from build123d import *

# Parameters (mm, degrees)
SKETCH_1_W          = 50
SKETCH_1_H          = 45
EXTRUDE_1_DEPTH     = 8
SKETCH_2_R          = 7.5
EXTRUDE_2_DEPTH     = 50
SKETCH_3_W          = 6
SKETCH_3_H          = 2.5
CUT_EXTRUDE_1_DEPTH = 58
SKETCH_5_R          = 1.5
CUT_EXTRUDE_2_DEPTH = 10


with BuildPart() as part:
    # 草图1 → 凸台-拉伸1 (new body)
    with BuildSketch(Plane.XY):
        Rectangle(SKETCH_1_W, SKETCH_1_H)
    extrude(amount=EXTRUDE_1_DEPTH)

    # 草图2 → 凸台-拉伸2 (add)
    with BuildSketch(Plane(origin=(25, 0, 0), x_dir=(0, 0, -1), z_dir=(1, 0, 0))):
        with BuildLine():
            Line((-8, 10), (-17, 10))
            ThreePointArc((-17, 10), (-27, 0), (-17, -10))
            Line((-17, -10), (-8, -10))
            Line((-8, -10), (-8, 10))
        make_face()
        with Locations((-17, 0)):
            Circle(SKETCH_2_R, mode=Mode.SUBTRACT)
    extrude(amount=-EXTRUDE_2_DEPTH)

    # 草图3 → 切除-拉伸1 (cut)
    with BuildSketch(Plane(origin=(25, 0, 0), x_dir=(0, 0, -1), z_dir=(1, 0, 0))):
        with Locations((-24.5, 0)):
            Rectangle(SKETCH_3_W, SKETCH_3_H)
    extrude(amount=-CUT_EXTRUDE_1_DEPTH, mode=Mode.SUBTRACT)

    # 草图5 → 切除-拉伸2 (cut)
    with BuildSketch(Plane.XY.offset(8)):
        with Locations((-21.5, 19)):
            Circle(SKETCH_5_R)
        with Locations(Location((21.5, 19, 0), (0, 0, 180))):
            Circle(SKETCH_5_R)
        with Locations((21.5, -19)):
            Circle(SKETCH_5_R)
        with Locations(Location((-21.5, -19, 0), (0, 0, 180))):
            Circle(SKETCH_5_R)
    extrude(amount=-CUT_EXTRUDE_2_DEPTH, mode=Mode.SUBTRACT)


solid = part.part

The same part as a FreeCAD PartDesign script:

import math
import FreeCAD as App
import Part
import Sketcher
from FreeCAD import Vector


def add_polygon(sketch, points):
    """Adds a closed chain of lines whose ends are joined by coincident constraints."""
    first, n = sketch.GeometryCount, len(points)
    for a, b in zip(points, points[1:] + points[:1]):
        sketch.addGeometry(Part.LineSegment(App.Vector(*a, 0), App.Vector(*b, 0)), False)
    for i in range(n):
        sketch.addConstraint(Sketcher.Constraint("Coincident", first + i, 2, first + (i + 1) % n, 1))

doc = App.newDocument("Part")
body = doc.addObject("PartDesign::Body", "Body")

# Sketch on XY plane
sketch1 = body.newObject("Sketcher::SketchObject", "Sketch")
sketch1.AttachmentSupport = (doc.getObject("XY_Plane"), [""])
sketch1.MapMode = "FlatFace"
add_polygon(sketch1, [(-25, 22), (-25, -22), (25, -22), (25, 22)])  # lines 0-3
sketch1.addConstraint([
    Sketcher.Constraint("Vertical", 0),
    Sketcher.Constraint("Horizontal", 1),
    Sketcher.Constraint("Vertical", 2),
    Sketcher.Constraint("Horizontal", 3),
    Sketcher.Constraint("Symmetric", 0, 2, 2, 2, -1, 1),
    Sketcher.Constraint("DistanceX", 1, 1, 1, 2, 50.0),
    Sketcher.Constraint("DistanceY", 0, 2, 0, 1, 45.0),
])
pad1 = body.newObject("PartDesign::Pad", "Pad")
pad1.Profile = sketch1
pad1.Length = 8

# Sketch on YZ plane
sketch2 = body.newObject("Sketcher::SketchObject", "Sketch001")
sketch2.AttachmentSupport = (doc.getObject("YZ_Plane"), [""])
sketch2.MapMode = "FlatFace"
sketch2.AttachmentOffset = App.Placement(Vector(0, 0, 25), App.Rotation())
sketch2.addGeometry([
    Part.LineSegment(Vector(10, 8, 0), Vector(10, 17, 0)),  # 0
    Part.ArcOfCircle(Part.Circle(Vector(0, 17, 0), Vector(0, 0, 1), 10), math.radians(0), math.radians(180)),  # 1
    Part.LineSegment(Vector(-10, 17, 0), Vector(-10, 8, 0)),  # 2
    Part.LineSegment(Vector(-10, 8, 0), Vector(10, 8, 0)),  # 3
    Part.Circle(Vector(0, 17, 0), Vector(0, 0, 1), 8),  # 4
], False)
sketch2.addConstraint([
    Sketcher.Constraint("Tangent", 0, 2, 1, 1),
    Sketcher.Constraint("Tangent", 1, 2, 2, 1),
    Sketcher.Constraint("Coincident", 2, 2, 3, 1),
    Sketcher.Constraint("Coincident", 3, 2, 0, 1),
    Sketcher.Constraint("Vertical", 0),
    Sketcher.Constraint("Vertical", 2),
    Sketcher.Constraint("Horizontal", 3),
    Sketcher.Constraint("Coincident", 4, 3, 1, 3),
    Sketcher.Constraint("PointOnObject", 1, 3, -2),
    Sketcher.Constraint("Diameter", 4, 15.0),
    Sketcher.Constraint("Radius", 1, 10.0),
    Sketcher.Constraint("DistanceY", 0, 1, 0, 2, 9.0),
    Sketcher.Constraint("DistanceY", -1, 1, 1, 3, 17.0),
])
pad2 = body.newObject("PartDesign::Pad", "Pad001")
pad2.Profile = sketch2
pad2.Length = 50
pad2.Reversed = True

# Sketch on YZ plane
sketch3 = body.newObject("Sketcher::SketchObject", "Sketch002")
sketch3.AttachmentSupport = (doc.getObject("YZ_Plane"), [""])
sketch3.MapMode = "FlatFace"
sketch3.AttachmentOffset = App.Placement(Vector(0, 0, 25), App.Rotation())
add_polygon(sketch3, [(1.2, 27.5), (-1.2, 27.5), (-1.2, 21.5), (1.2, 21.5)])  # lines 0-3
sketch3.addConstraint([
    Sketcher.Constraint("Horizontal", 0),
    Sketcher.Constraint("Vertical", 1),
    Sketcher.Constraint("Horizontal", 2),
    Sketcher.Constraint("Vertical", 3),
    Sketcher.Constraint("DistanceY", 1, 2, 1, 1, 6.0),
    Sketcher.Constraint("DistanceX", 0, 2, 0, 1, 2.5),
    Sketcher.Constraint("DistanceY", -1, 1, 0, 2, 27.5),
    Sketcher.Constraint("DistanceX", 0, 2, -1, 1, 1.25),
])
pocket1 = body.newObject("PartDesign::Pocket", "Pocket")
pocket1.Profile = sketch3
pocket1.Length = 58

# Sketch on XY plane
sketch4 = body.newObject("Sketcher::SketchObject", "Sketch003")
sketch4.AttachmentSupport = (doc.getObject("XY_Plane"), [""])
sketch4.MapMode = "FlatFace"
sketch4.AttachmentOffset = App.Placement(Vector(0, 0, 8), App.Rotation())
sketch4.addGeometry([
    Part.Circle(Vector(-21.5, 19, 0), Vector(0, 0, 1), 1.5),
    Part.Circle(Vector(21.5, 19, 0), Vector(0, 0, 1), 1.5),
    Part.Circle(Vector(21.5, -19, 0), Vector(0, 0, 1), 1.5),
    Part.Circle(Vector(-21.5, -19, 0), Vector(0, 0, 1), 1.5),
], False)
sketch4.addConstraint([
    Sketcher.Constraint("Equal", 0, 1),
    Sketcher.Constraint("Equal", 1, 2),
    Sketcher.Constraint("Equal", 2, 3),
    Sketcher.Constraint("Symmetric", 0, 3, 2, 3, -1, 1),
    Sketcher.Constraint("Symmetric", 1, 3, 3, 3, -1, 1),
    Sketcher.Constraint("Symmetric", 0, 3, 1, 3, -2),
    Sketcher.Constraint("Diameter", 0, 3.0),
    Sketcher.Constraint("DistanceY", -1, 1, 0, 3, 19.0),
    Sketcher.Constraint("DistanceX", 0, 3, 1, 3, 43.0),
])
pocket2 = body.newObject("PartDesign::Pocket", "Pocket001")
pocket2.Profile = sketch4
pocket2.Length = 10

doc.recompute()
